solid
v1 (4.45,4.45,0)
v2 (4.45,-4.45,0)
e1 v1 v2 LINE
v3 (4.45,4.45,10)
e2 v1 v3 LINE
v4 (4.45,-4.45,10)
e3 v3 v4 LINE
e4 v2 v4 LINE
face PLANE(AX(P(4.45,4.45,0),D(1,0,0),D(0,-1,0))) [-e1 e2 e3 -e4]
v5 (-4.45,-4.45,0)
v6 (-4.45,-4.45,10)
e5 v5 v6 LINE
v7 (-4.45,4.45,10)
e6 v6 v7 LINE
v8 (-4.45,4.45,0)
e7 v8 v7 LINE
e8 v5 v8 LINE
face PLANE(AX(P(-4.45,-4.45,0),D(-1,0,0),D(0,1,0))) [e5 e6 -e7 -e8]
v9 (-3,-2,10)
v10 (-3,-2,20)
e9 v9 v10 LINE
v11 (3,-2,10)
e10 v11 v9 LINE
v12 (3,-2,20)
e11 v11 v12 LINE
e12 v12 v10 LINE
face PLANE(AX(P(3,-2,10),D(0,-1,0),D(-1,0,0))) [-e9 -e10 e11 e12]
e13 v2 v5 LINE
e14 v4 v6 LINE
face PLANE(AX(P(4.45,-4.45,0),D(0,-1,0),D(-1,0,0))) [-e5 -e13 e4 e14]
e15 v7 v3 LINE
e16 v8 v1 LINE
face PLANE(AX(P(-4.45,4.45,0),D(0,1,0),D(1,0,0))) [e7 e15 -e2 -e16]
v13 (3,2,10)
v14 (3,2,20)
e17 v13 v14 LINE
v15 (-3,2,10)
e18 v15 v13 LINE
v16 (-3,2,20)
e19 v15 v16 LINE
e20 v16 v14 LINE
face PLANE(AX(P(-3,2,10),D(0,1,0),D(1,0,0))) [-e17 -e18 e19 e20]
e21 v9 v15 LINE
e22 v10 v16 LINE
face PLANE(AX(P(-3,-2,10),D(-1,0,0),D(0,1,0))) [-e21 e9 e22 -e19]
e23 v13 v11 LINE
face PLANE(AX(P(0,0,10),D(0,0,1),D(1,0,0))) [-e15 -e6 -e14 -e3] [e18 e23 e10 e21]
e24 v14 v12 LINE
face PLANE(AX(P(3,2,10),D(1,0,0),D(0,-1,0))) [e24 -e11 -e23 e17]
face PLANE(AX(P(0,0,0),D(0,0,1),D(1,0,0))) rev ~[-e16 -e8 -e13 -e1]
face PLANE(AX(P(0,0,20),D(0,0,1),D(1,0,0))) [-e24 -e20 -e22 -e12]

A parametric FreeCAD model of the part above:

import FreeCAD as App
import Part
import Sketcher

V = App.Vector


def add_polygon(sketch, points):
    """Adds a closed chain of lines whose ends are joined by coincident constraints."""
    first, n = sketch.GeometryCount, len(points)
    for a, b in zip(points, points[1:] + points[:1]):
        sketch.addGeometry(Part.LineSegment(App.Vector(*a, 0), App.Vector(*b, 0)), False)
    for i in range(n):
        sketch.addConstraint(Sketcher.Constraint("Coincident", first + i, 2, first + (i + 1) % n, 1))

doc = App.newDocument("Part")
body = doc.addObject("PartDesign::Body", "Body")

# Sketch on XY plane
sketch1 = body.newObject("Sketcher::SketchObject", "Sketch")
sketch1.AttachmentSupport = (doc.getObject("XY_Plane"), [""])
sketch1.MapMode = "FlatFace"
add_polygon(sketch1, [(4, 4), (-4, 4), (-4, -4), (4, -4)])  # lines 0-3
sketch1.addConstraint(Sketcher.Constraint("Horizontal", 0))
sketch1.addConstraint(Sketcher.Constraint("Vertical", 1))
sketch1.addConstraint(Sketcher.Constraint("Horizontal", 2))
sketch1.addConstraint(Sketcher.Constraint("Vertical", 3))
sketch1.addConstraint(Sketcher.Constraint("Symmetric", 0, 2, 2, 2, -1, 1))
sketch1.addConstraint(Sketcher.Constraint("Equal", 2, 1))
sketch1.addConstraint(Sketcher.Constraint("DistanceX", 0, 2, 0, 1, 8.9))
pad1 = body.newObject("PartDesign::Pad", "Pad")
pad1.Profile = sketch1
pad1.Length = 10

# Sketch on XY plane
sketch2 = body.newObject("Sketcher::SketchObject", "Sketch001")
sketch2.AttachmentSupport = (doc.getObject("XY_Plane"), [""])
sketch2.MapMode = "FlatFace"
sketch2.AttachmentOffset = App.Placement(V(0, 0, 10), App.Rotation())
add_polygon(sketch2, [(3, 2), (-3, 2), (-3, -2), (3, -2)])  # lines 0-3
sketch2.addConstraint(Sketcher.Constraint("Horizontal", 0))
sketch2.addConstraint(Sketcher.Constraint("Vertical", 1))
sketch2.addConstraint(Sketcher.Constraint("Horizontal", 2))
sketch2.addConstraint(Sketcher.Constraint("Vertical", 3))
sketch2.addConstraint(Sketcher.Constraint("Symmetric", 0, 2, 2, 2, -1, 1))
sketch2.addConstraint(Sketcher.Constraint("DistanceX", 0, 2, 0, 1, 6.0))
sketch2.addConstraint(Sketcher.Constraint("DistanceY", 1, 2, 1, 1, 4.0))
pad2 = body.newObject("PartDesign::Pad", "Pad001")
pad2.Profile = sketch2
pad2.Length = 10

doc.recompute()
